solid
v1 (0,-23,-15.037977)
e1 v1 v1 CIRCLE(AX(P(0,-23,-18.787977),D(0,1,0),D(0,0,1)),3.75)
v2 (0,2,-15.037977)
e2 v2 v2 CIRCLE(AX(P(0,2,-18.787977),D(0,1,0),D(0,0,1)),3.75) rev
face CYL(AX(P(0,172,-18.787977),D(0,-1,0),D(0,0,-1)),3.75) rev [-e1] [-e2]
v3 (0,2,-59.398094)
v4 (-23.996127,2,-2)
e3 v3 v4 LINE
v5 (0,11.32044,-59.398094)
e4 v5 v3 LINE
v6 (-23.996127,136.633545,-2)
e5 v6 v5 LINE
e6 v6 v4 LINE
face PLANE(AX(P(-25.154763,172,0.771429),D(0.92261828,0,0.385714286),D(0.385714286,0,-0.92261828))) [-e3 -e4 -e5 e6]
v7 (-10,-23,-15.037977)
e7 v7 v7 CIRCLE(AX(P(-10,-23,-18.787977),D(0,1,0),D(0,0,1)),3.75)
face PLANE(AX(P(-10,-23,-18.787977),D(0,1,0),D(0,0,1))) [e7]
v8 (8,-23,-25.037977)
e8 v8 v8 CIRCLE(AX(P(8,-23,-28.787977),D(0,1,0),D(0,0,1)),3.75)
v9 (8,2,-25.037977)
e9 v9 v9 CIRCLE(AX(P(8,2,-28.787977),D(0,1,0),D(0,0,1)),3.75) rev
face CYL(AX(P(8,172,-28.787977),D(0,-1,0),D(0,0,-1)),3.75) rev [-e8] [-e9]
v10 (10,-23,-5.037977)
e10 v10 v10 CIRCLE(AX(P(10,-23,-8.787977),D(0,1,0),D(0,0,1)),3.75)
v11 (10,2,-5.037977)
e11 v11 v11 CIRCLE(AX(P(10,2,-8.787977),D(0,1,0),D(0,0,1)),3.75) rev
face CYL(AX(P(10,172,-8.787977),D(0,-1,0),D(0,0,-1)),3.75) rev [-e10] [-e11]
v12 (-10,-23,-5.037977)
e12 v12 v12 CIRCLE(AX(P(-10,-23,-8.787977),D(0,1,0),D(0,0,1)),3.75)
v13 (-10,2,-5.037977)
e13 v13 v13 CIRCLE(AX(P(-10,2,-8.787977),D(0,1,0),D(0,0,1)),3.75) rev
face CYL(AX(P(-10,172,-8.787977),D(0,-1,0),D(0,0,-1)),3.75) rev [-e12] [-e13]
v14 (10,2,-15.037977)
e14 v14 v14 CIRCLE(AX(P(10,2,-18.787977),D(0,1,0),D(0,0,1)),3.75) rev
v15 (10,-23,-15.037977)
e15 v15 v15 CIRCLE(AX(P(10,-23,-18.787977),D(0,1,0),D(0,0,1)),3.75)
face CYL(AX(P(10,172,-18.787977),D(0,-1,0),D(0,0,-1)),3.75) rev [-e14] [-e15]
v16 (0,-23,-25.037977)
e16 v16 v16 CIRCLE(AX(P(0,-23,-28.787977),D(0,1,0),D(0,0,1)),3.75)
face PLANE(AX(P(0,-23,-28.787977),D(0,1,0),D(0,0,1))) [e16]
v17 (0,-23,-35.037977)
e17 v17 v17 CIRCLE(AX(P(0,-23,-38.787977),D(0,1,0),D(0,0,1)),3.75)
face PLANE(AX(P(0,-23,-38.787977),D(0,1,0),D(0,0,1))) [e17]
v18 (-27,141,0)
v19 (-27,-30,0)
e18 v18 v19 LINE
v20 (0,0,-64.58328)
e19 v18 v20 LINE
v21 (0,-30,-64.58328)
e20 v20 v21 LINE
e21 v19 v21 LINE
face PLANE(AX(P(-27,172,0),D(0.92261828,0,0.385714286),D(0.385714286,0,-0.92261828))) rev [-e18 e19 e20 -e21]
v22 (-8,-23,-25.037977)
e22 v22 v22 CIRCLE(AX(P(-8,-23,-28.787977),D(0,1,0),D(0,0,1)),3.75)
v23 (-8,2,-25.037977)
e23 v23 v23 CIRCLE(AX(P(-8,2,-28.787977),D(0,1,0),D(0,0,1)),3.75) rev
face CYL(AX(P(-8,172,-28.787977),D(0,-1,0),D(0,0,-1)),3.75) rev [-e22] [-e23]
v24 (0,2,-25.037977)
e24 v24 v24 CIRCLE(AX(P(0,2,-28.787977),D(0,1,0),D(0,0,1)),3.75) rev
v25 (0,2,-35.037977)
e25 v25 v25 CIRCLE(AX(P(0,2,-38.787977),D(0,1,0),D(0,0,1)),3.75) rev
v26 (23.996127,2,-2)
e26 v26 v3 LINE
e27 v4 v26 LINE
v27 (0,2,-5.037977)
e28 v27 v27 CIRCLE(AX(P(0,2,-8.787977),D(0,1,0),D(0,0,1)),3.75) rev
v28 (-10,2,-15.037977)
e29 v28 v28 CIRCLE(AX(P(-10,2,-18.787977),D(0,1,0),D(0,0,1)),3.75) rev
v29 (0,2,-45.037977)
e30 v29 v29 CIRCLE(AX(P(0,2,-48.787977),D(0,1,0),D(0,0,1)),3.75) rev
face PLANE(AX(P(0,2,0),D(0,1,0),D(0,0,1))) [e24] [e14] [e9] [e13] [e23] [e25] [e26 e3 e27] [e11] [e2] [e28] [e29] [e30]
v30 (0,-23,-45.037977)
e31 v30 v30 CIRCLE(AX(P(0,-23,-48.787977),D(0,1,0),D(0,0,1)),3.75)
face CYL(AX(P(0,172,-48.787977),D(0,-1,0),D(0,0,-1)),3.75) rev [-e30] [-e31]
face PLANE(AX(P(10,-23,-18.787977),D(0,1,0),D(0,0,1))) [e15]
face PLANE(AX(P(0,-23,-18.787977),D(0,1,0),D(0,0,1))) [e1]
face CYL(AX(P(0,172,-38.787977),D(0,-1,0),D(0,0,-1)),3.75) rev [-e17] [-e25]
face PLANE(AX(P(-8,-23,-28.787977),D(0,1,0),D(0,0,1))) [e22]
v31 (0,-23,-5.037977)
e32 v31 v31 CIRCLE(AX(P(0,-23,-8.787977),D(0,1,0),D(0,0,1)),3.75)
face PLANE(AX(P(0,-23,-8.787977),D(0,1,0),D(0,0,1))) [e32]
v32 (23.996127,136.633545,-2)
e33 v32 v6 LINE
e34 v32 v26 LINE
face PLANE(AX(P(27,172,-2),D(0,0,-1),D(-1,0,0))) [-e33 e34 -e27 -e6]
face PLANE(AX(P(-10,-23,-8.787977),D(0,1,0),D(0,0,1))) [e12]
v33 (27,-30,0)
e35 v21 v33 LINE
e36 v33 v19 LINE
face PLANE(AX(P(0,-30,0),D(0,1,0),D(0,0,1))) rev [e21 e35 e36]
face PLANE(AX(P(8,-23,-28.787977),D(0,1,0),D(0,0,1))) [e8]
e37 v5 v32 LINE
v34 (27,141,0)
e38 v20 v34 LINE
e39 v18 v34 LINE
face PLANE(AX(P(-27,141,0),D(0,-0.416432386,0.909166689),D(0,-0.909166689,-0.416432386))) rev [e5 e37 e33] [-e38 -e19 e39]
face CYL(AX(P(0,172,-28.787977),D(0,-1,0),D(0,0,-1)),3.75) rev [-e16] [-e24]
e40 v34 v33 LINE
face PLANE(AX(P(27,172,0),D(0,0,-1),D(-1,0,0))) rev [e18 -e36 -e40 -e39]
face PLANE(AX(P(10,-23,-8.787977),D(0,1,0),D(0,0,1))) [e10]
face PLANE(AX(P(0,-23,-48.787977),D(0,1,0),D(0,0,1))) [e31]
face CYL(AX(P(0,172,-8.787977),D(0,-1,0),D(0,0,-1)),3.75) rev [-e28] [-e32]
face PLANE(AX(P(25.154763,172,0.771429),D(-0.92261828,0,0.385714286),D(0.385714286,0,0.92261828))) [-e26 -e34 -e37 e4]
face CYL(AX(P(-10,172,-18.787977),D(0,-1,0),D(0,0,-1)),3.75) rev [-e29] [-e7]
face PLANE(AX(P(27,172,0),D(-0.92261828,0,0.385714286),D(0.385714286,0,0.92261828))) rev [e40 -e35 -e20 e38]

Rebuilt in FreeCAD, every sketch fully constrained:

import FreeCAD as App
import Part
import Sketcher

V = App.Vector
Q = App.Units.Quantity


def faces_at(feature, points):
    """Names of the faces that lie closest to the given points."""
    faces = feature.Shape.Faces
    near = lambda p: min(range(len(faces)), key=lambda i: faces[i].distToShape(Part.Vertex(*p))[0])
    return sorted({f"Face{near(p) + 1}" for p in points})


def add_polygon(sketch, points):
    """Adds a closed chain of lines whose ends are joined by coincident constraints."""
    first, n = sketch.GeometryCount, len(points)
    for a, b in zip(points, points[1:] + points[:1]):
        sketch.addGeometry(Part.LineSegment(App.Vector(*a, 0), App.Vector(*b, 0)), False)
    for i in range(n):
        sketch.addConstraint(Sketcher.Constraint("Coincident", first + i, 2, first + (i + 1) % n, 1))

doc = App.newDocument("Part")
params = doc.addObject("Spreadsheet::Sheet", "Params")
for row, (alias, value) in enumerate([
    ("sketch1_width", "54 mm"),
    ("sketch1_length", "70 mm"),
    ("pad1_length", "172 mm"),
    ("thickness_wall", "2 mm"),
    ("sketch2_width", "54 mm"),
    ("sketch2_length", "70 mm"),
    ("pad2_length", "30 mm"),
    ("sketch3_width", "172 mm"),
    ("sketch4_diameter", "7.5 mm"),
    ("pocket2_length", "184.847763 mm"),
    ("pocket2_length2", "25 mm"),
    ("sketch5_width", "31 mm"),
], start=1):
    params.set(f"A{row}", alias)
    params.set(f"B{row}", "=" + value)
    params.setAlias(f"B{row}", alias)

body = doc.addObject("PartDesign::Body", "Body")

sketch1 = body.newObject("Sketcher::SketchObject", "Sketch")
sketch1.AttachmentSupport = (doc.getObject("XZ_Plane"), [""])
sketch1.MapMode = "FlatFace"
add_polygon(sketch1, [(-27, 0), (27, 0), (0, -65)])
sketch1.addConstraint(Sketcher.Constraint("Horizontal", 0))
sketch1.addConstraint(Sketcher.Constraint("Symmetric", 0, 2, 2, 2, -1, 1))
sketch1.addConstraint(Sketcher.Constraint("PointOnObject", 1, 2, -2))
sketch1.addConstraint(Sketcher.Constraint("DistanceX", 0, 1, 0, 2, Q("54 mm")))
sketch1.addConstraint(Sketcher.Constraint("Distance", 1, Q("70 mm")))
sketch1.setExpression("Constraints[6]", "Params.sketch1_width")
sketch1.setExpression("Constraints[7]", "Params.sketch1_length")
pad1 = body.newObject("PartDesign::Pad", "Pad")
pad1.Profile = sketch1
pad1.setExpression("Length", "Params.pad1_length")
pad1.Reversed = True
doc.recompute()

thickness = body.newObject("PartDesign::Thickness", "Thickness")
thickness.Base = (pad1, faces_at(pad1, [(0, 172, -32.292)]))
thickness.setExpression("Value", "Params.thickness_wall")
thickness.Reversed = True
thickness.Join = "Intersection"

sketch2 = body.newObject("Sketcher::SketchObject", "Sketch001")
sketch2.AttachmentSupport = (doc.getObject("XZ_Plane"), [""])
sketch2.MapMode = "FlatFace"
add_polygon(sketch2, [(27, 0), (-27, 0), (0, -65)])
sketch2.addConstraint(Sketcher.Constraint("Horizontal", 0))
sketch2.addConstraint(Sketcher.Constraint("Symmetric", 0, 2, 2, 2, -1, 1))
sketch2.addConstraint(Sketcher.Constraint("PointOnObject", 1, 2, -2))
sketch2.addConstraint(Sketcher.Constraint("DistanceX", 0, 2, 0, 1, Q("54 mm")))
sketch2.addConstraint(Sketcher.Constraint("Distance", 1, Q("70 mm")))
sketch2.setExpression("Constraints[6]", "Params.sketch2_width")
sketch2.setExpression("Constraints[7]", "Params.sketch2_length")
pad2 = body.newObject("PartDesign::Pad", "Pad001")
pad2.Profile = sketch2
pad2.setExpression("Length", "Params.pad2_length")

sketch3 = body.newObject("Sketcher::SketchObject", "Sketch002")
sketch3.AttachmentSupport = (doc.getObject("YZ_Plane"), [""])
sketch3.MapMode = "FlatFace"
add_polygon(sketch3, [(172, -65), (172, -5), (0, -65)])
sketch3.addConstraint(Sketcher.Constraint("Vertical", 0))
sketch3.addConstraint(Sketcher.Constraint("Horizontal", 2))
sketch3.addConstraint(Sketcher.Constraint("PointOnObject", 1, 2, -2))
sketch3.addConstraint(Sketcher.Constraint("DistanceX", 2, 1, 2, 2, Q("172 mm")))
sketch3.addConstraint(Sketcher.Constraint("DistanceY", 0, 2, -1, 1, Q("4.522802 mm")))
sketch3.addConstraint(Sketcher.Constraint("Distance", 1, Q("182.184689 mm")))
sketch3.setExpression("Constraints[6]", "Params.sketch3_width")
pocket1 = body.newObject("PartDesign::Pocket", "Pocket")
pocket1.Profile = sketch3
pocket1.Type = "ThroughAll"
pocket1.Midplane = True

sketch4 = body.newObject("Sketcher::SketchObject", "Sketch003")
sketch4.AttachmentSupport = (doc.getObject("XZ_Plane"), [""])
sketch4.MapMode = "FlatFace"
sketch4.AttachmentOffset = App.Placement(V(0, 0, -2), App.Rotation())
sketch4.addGeometry(Part.Circle(V(0, -48.8, 0), V(0, 0, 1), 3.8), False)
sketch4.addGeometry(Part.Circle(V(0, -38.8, 0), V(0, 0, 1), 3.8), False)
sketch4.addGeometry(Part.Circle(V(0, -28.8, 0), V(0, 0, 1), 3.8), False)
sketch4.addGeometry(Part.Circle(V(0, -18.8, 0), V(0, 0, 1), 3.8), False)
sketch4.addGeometry(Part.Circle(V(0, -8.8, 0), V(0, 0, 1), 3.8), False)
sketch4.addGeometry(Part.Circle(V(10, -8.8, 0), V(0, 0, 1), 3.8), False)
sketch4.addGeometry(Part.Circle(V(-10, -8.8, 0), V(0, 0, 1), 3.8), False)
sketch4.addGeometry(Part.Circle(V(10, -18.8, 0), V(0, 0, 1), 3.8), False)
sketch4.addGeometry(Part.Circle(V(-10, -18.8, 0), V(0, 0, 1), 3.8), False)
sketch4.addGeometry(Part.Circle(V(8, -28.8, 0), V(0, 0, 1), 3.8), False)
sketch4.addGeometry(Part.Circle(V(-8, -28.8, 0), V(0, 0, 1), 3.8), False)
sketch4.addConstraint(Sketcher.Constraint("Equal", 0, 1))
sketch4.addConstraint(Sketcher.Constraint("Equal", 1, 2))
sketch4.addConstraint(Sketcher.Constraint("Equal", 2, 3))
sketch4.addConstraint(Sketcher.Constraint("Equal", 3, 4))
sketch4.addConstraint(Sketcher.Constraint("Equal", 4, 5))
sketch4.addConstraint(Sketcher.Constraint("Equal", 5, 6))
sketch4.addConstraint(Sketcher.Constraint("Equal", 6, 7))
sketch4.addConstraint(Sketcher.Constraint("Equal", 7, 8))
sketch4.addConstraint(Sketcher.Constraint("Equal", 8, 9))
sketch4.addConstraint(Sketcher.Constraint("Equal", 9, 10))
sketch4.addConstraint(Sketcher.Constraint("Symmetric", 5, 3, 6, 3, -2))
sketch4.addConstraint(Sketcher.Constraint("Symmetric", 7, 3, 8, 3, -2))
sketch4.addConstraint(Sketcher.Constraint("Symmetric", 9, 3, 10, 3, -2))
sketch4.addConstraint(Sketcher.Constraint("PointOnObject", 0, 3, -2))
sketch4.addConstraint(Sketcher.Constraint("PointOnObject", 1, 3, -2))
sketch4.addConstraint(Sketcher.Constraint("PointOnObject", 2, 3, -2))
sketch4.addConstraint(Sketcher.Constraint("PointOnObject", 3, 3, -2))
sketch4.addConstraint(Sketcher.Constraint("PointOnObject", 4, 3, -2))
sketch4.addConstraint(Sketcher.Constraint("Horizontal", 4, 3, 5, 3))
sketch4.addConstraint(Sketcher.Constraint("Horizontal", 3, 3, 7, 3))
sketch4.addConstraint(Sketcher.Constraint("Horizontal", 2, 3, 9, 3))
sketch4.addConstraint(Sketcher.Constraint("Vertical", 5, 3, 7, 3))
sketch4.addConstraint(Sketcher.Constraint("Diameter", 0, Q("7.5 mm")))
sketch4.addConstraint(Sketcher.Constraint("DistanceX", -1, 1, 5, 3, Q("10 mm")))
sketch4.addConstraint(Sketcher.Constraint("DistanceX", -1, 1, 9, 3, Q("8 mm")))
sketch4.addConstraint(Sketcher.Constraint("DistanceY", 0, 3, 1, 3, Q("10 mm")))
sketch4.addConstraint(Sketcher.Constraint("DistanceY", 1, 3, 2, 3, Q("10 mm")))
sketch4.addConstraint(Sketcher.Constraint("DistanceY", 2, 3, 3, 3, Q("10 mm")))
sketch4.addConstraint(Sketcher.Constraint("DistanceY", 3, 3, 4, 3, Q("10 mm")))
sketch4.addConstraint(Sketcher.Constraint("DistanceY", 0, 3, -1, 1, Q("48.787977 mm")))
sketch4.setExpression("Constraints[22]", "Params.sketch4_diameter")
pocket2 = body.newObject("PartDesign::Pocket", "Pocket001")
pocket2.Profile = sketch4
pocket2.Type = "TwoLengths"
pocket2.setExpression("Length", "Params.pocket2_length")
pocket2.setExpression("Length2", "Params.pocket2_length2")

sketch5 = body.newObject("Sketcher::SketchObject", "Sketch004")
sketch5.AttachmentSupport = (doc.getObject("YZ_Plane"), [""])
sketch5.MapMode = "FlatFace"
add_polygon(sketch5, [(172, 0), (141, 0), (141, -62), (172, -62)])
sketch5.addConstraint(Sketcher.Constraint("Horizontal", 0))
sketch5.addConstraint(Sketcher.Constraint("Vertical", 1))
sketch5.addConstraint(Sketcher.Constraint("Horizontal", 2))
sketch5.addConstraint(Sketcher.Constraint("Vertical", 3))
sketch5.addConstraint(Sketcher.Constraint("PointOnObject", 0, 2, -1))
sketch5.addConstraint(Sketcher.Constraint("DistanceX", 0, 2, 0, 1, Q("31 mm")))
sketch5.addConstraint(Sketcher.Constraint("DistanceX", -1, 1, 0, 2, Q("141 mm")))
sketch5.addConstraint(Sketcher.Constraint("DistanceY", 1, 2, 1, 1, Q("61.645841 mm")))
sketch5.setExpression("Constraints[9]", "Params.sketch5_width")
pocket3 = body.newObject("PartDesign::Pocket", "Pocket002")
pocket3.Profile = sketch5
pocket3.Type = "ThroughAll"
pocket3.Midplane = True

sketch6 = body.newObject("Sketcher::SketchObject", "Sketch005")
sketch6.AttachmentSupport = (doc.getObject("YZ_Plane"), [""])
sketch6.MapMode = "FlatFace"
add_polygon(sketch6, [(141, 0), (0, -65), (141, -24)])
sketch6.addConstraint(Sketcher.Constraint("Vertical", 2))
sketch6.addConstraint(Sketcher.Constraint("PointOnObject", 0, 2, -2))
sketch6.addConstraint(Sketcher.Constraint("PointOnObject", 2, 2, -1))
sketch6.addConstraint(Sketcher.Constraint("DistanceX", -1, 1, 1, 2, Q("141 mm")))
sketch6.addConstraint(Sketcher.Constraint("DistanceY", 2, 1, 2, 2, Q("23.73241 mm")))
sketch6.addConstraint(Sketcher.Constraint("Distance", 1, Q("146.798479 mm")))
pocket4 = body.newObject("PartDesign::Pocket", "Pocket003")
pocket4.Profile = sketch6
pocket4.Type = "ThroughAll"
pocket4.Midplane = True

doc.recompute()
